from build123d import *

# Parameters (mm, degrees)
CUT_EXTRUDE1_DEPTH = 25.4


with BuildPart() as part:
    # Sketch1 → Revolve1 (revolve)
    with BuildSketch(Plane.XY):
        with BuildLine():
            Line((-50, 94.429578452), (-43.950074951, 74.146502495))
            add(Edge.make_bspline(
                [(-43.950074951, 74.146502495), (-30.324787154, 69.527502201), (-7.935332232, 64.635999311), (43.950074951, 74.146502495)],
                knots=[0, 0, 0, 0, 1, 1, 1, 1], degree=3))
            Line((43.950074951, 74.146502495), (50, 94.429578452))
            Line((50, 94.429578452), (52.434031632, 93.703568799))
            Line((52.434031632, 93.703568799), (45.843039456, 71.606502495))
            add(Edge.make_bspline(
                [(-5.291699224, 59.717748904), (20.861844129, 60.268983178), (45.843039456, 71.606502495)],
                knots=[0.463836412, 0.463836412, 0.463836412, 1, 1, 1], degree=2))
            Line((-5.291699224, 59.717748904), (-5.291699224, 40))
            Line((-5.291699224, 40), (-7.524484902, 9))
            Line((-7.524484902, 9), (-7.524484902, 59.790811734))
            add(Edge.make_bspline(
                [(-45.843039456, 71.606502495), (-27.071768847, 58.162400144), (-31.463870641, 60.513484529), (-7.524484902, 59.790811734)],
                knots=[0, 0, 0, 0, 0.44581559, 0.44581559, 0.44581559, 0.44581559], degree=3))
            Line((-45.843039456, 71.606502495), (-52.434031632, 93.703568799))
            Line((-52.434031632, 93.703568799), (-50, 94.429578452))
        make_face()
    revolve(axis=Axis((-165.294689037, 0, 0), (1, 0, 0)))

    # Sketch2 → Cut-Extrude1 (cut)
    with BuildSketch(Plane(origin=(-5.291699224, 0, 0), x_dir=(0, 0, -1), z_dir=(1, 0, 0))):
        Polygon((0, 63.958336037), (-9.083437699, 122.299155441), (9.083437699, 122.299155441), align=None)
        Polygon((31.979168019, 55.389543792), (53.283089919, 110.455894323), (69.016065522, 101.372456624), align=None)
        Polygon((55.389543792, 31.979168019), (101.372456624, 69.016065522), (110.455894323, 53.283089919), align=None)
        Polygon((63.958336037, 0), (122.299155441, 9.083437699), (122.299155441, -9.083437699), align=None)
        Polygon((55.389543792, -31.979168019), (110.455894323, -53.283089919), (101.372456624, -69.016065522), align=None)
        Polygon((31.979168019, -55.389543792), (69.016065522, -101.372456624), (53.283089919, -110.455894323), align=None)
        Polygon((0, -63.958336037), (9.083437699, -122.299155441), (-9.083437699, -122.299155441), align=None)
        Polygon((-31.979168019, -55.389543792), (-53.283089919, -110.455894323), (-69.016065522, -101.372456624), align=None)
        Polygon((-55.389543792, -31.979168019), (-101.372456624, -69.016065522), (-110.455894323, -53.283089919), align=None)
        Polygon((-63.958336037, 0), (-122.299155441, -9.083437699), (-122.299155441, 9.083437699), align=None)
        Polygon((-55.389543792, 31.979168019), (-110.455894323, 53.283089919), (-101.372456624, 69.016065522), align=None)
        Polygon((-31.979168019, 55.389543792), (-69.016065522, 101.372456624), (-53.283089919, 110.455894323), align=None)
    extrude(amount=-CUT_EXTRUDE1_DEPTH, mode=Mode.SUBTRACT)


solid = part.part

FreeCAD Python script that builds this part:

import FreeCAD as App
import Part
import Sketcher
from FreeCAD import Vector
Q = App.Units.Quantity


def add_polygon(sketch, points):
    """Adds a closed chain of lines whose ends are joined by coincident constraints."""
    first, n = sketch.GeometryCount, len(points)
    for a, b in zip(points, points[1:] + points[:1]):
        sketch.addGeometry(Part.LineSegment(App.Vector(*a, 0), App.Vector(*b, 0)), False)
    for i in range(n):
        sketch.addConstraint(Sketcher.Constraint("Coincident", first + i, 2, first + (i + 1) % n, 1))

doc = App.newDocument("Part")
params = doc.addObject("Spreadsheet::Sheet", "Params")
for row, (alias, value) in enumerate([
    ("sketch1_length", "0.1 in"),
    ("sketch1_length2", "0.1 in"),
    ("revolution_angle", "360 deg"),
    ("pocket1_length", "1 in"),
], start=1):
    params.set(f"A{row}", alias)
    params.set(f"B{row}", "=" + value)
    params.setAlias(f"B{row}", alias)

body = doc.addObject("PartDesign::Body", "Body")

# Sketch on XY plane
sketch1 = doc.addObject("Sketcher::SketchObject", "Sketch")
body.addObject(sketch1)
sketch1.AttachmentSupport = (doc.XY_Plane, [""])
sketch1.MapMode = "FlatFace"
sketch1.addGeometry([
    Part.LineSegment(Vector(-43.950075, 74.146502, 0), Vector(-50, 94.429578, 0)),  # 0
    Part.LineSegment(Vector(-50, 94.429578, 0), Vector(-52.434032, 93.703569, 0)),  # 1
    Part.LineSegment(Vector(-52.434032, 93.703569, 0), Vector(-45.843039, 71.606502, 0)),  # 2
    Part.BSplineCurve([Vector(-45.843039, 71.606502, 0), Vector(-27.071769, 58.1624, 0), Vector(-31.463871, 60.513485, 0), Vector(-7.524485, 59.790812, 0)], [4, 4], [0, 0.44581559], False, 3, [1, 1, 1, 1], False),  # 3
    Part.LineSegment(Vector(-7.524485, 59.790812, 0), Vector(-7.524485, 9, 0)),  # 4
    Part.LineSegment(Vector(-7.524485, 9, 0), Vector(-5.291699, 40, 0)),  # 5
    Part.LineSegment(Vector(-5.291699, 40, 0), Vector(-5.291699, 59.717749, 0)),  # 6
    Part.BSplineCurve([Vector(-5.291699, 59.717749, 0), Vector(20.861844, 60.268983, 0), Vector(45.843039, 71.606502, 0)], [3, 3], [0.463836412, 1], False, 2, [1, 1, 1], False),  # 7
    Part.LineSegment(Vector(45.843039, 71.606502, 0), Vector(52.434032, 93.703569, 0)),  # 8
    Part.LineSegment(Vector(52.434032, 93.703569, 0), Vector(50, 94.429578, 0)),  # 9
    Part.LineSegment(Vector(50, 94.429578, 0), Vector(43.950075, 74.146502, 0)),  # 10
    Part.BSplineCurve([Vector(-43.950075, 74.146502, 0), Vector(-30.324787, 69.527502, 0), Vector(-7.935332, 64.635999, 0), Vector(43.950075, 74.146502, 0)], [4, 4], [0, 1], False, 3, [1, 1, 1, 1], False),  # 11
], False)
sketch1.addConstraint([
    Sketcher.Constraint("Block", 3),
    Sketcher.Constraint("Block", 7),
    Sketcher.Constraint("Block", 11),
    Sketcher.Constraint("Coincident", 0, 2, 1, 1),
    Sketcher.Constraint("Coincident", 1, 2, 2, 1),
    Sketcher.Constraint("Coincident", 2, 2, 3, 1),
    Sketcher.Constraint("Coincident", 3, 2, 4, 1),
    Sketcher.Constraint("Coincident", 4, 2, 5, 1),
    Sketcher.Constraint("Coincident", 5, 2, 6, 1),
    Sketcher.Constraint("Coincident", 6, 2, 7, 1),
    Sketcher.Constraint("Coincident", 7, 2, 8, 1),
    Sketcher.Constraint("Coincident", 8, 2, 9, 1),
    Sketcher.Constraint("Coincident", 9, 2, 10, 1),
    Sketcher.Constraint("Coincident", 10, 2, 11, 2),
    Sketcher.Constraint("Coincident", 11, 1, 0, 1),
    Sketcher.Constraint("Vertical", 4),
    Sketcher.Constraint("Vertical", 6),
    Sketcher.Constraint("Distance", 1, Q("0.1 in")),
    Sketcher.Constraint("Distance", 9, Q("0.1 in")),
    Sketcher.Constraint("DistanceY", -1, 1, 0, 2, Q("3.7176999 in")),
    Sketcher.Constraint("DistanceY", -1, 1, 9, 2, Q("3.7176999 in")),
    Sketcher.Constraint("DistanceY", 4, 2, 4, 1, 50.790812),
    Sketcher.Constraint("DistanceY", 6, 1, 6, 2, 19.717749),
    Sketcher.Constraint("DistanceX", 0, 2, -1, 1, 50.0),
    Sketcher.Constraint("DistanceX", -1, 1, 9, 2, 50.0),
    Sketcher.Constraint("DistanceX", 1, 2, -1, 1, 52.434032),
    Sketcher.Constraint("DistanceX", -1, 1, 8, 2, 52.434032),
])
sketch1.setExpression("Constraints[17]", "Params.sketch1_length")
sketch1.setExpression("Constraints[18]", "Params.sketch1_length2")
revolution = doc.addObject("PartDesign::Revolution", "Revolution")
body.addObject(revolution)
revolution.Profile = sketch1
revolution.ReferenceAxis = (sketch1, ["H_Axis"])
revolution.setExpression("Angle", "Params.revolution_angle")

# Sketch on YZ plane
sketch2 = doc.addObject("Sketcher::SketchObject", "Sketch001")
body.addObject(sketch2)
sketch2.AttachmentSupport = (doc.YZ_Plane, [""])
sketch2.MapMode = "FlatFace"
sketch2.AttachmentOffset = App.Placement(Vector(0, 0, -5.291699), App.Rotation())
add_polygon(sketch2, [(122.299155, 9.083438), (63.958336, 0), (122.299155, -9.083438)])  # lines 0-2
add_polygon(sketch2, [(110.455894, -53.28309), (55.389544, -31.979168), (101.372457, -69.016066)])  # lines 3-5
add_polygon(sketch2, [(69.016066, -101.372457), (31.979168, -55.389544), (53.28309, -110.455894)])  # lines 6-8
add_polygon(sketch2, [(9.083438, -122.299155), (0, -63.958336), (-9.083438, -122.299155)])  # lines 9-11
add_polygon(sketch2, [(-53.28309, -110.455894), (-31.979168, -55.389544), (-69.016066, -101.372457)])  # lines 12-14
add_polygon(sketch2, [(-101.372457, -69.016066), (-55.389544, -31.979168), (-110.455894, -53.28309)])  # lines 15-17
add_polygon(sketch2, [(-122.299155, -9.083438), (-63.958336, 0), (-122.299155, 9.083438)])  # lines 18-20
add_polygon(sketch2, [(-110.455894, 53.28309), (-55.389544, 31.979168), (-101.372457, 69.016066)])  # lines 21-23
add_polygon(sketch2, [(-69.016066, 101.372457), (-31.979168, 55.389544), (-53.28309, 110.455894)])  # lines 24-26
add_polygon(sketch2, [(-9.083438, 122.299155), (0, 63.958336), (9.083438, 122.299155)])  # lines 27-29
add_polygon(sketch2, [(53.28309, 110.455894), (31.979168, 55.389544), (69.016066, 101.372457)])  # lines 30-32
add_polygon(sketch2, [(101.372457, 69.016066), (55.389544, 31.979168), (110.455894, 53.28309)])  # lines 33-35
sketch2.addConstraint([
    Sketcher.Constraint("Vertical", 2),
    Sketcher.Constraint("Horizontal", 11),
    Sketcher.Constraint("Vertical", 20),
    Sketcher.Constraint("Horizontal", 29),
    Sketcher.Constraint("Symmetric", 0, 2, 18, 2, -1, 1),
    Sketcher.Constraint("Symmetric", 1, 2, 19, 2, -1, 1),
    Sketcher.Constraint("Symmetric", 3, 2, 21, 2, -1, 1),
    Sketcher.Constraint("Symmetric", 4, 2, 22, 2, -1, 1),
    Sketcher.Constraint("Symmetric", 5, 2, 23, 2, -1, 1),
    Sketcher.Constraint("Symmetric", 6, 2, 24, 2, -1, 1),
    Sketcher.Constraint("Symmetric", 7, 2, 25, 2, -1, 1),
    Sketcher.Constraint("Symmetric", 8, 2, 26, 2, -1, 1),
    Sketcher.Constraint("Symmetric", 9, 2, 27, 2, -1, 1),
    Sketcher.Constraint("Symmetric", 10, 2, 28, 2, -1, 1),
    Sketcher.Constraint("Symmetric", 12, 2, 30, 2, -1, 1),
    Sketcher.Constraint("Symmetric", 13, 2, 31, 2, -1, 1),
    Sketcher.Constraint("Symmetric", 14, 2, 32, 2, -1, 1),
    Sketcher.Constraint("Symmetric", 15, 2, 33, 2, -1, 1),
    Sketcher.Constraint("Symmetric", 16, 2, 34, 2, -1, 1),
    Sketcher.Constraint("Symmetric", 17, 2, 35, 2, -1, 1),
    Sketcher.Constraint("Symmetric", 6, 2, 12, 2, -2),
    Sketcher.Constraint("Symmetric", 8, 2, 13, 2, -2),
    Sketcher.Constraint("Symmetric", 7, 2, 14, 2, -2),
    Sketcher.Constraint("Symmetric", 3, 2, 15, 2, -2),
    Sketcher.Constraint("Symmetric", 5, 2, 16, 2, -2),
    Sketcher.Constraint("Symmetric", 4, 2, 17, 2, -2),
    Sketcher.Constraint("PointOnObject", 0, 2, -1),
    Sketcher.Constraint("PointOnObject", 9, 2, -2),
    Sketcher.Constraint("Perpendicular", 0, 9),
    Sketcher.Constraint("Perpendicular", 1, 10),
    Sketcher.Constraint("Perpendicular", 3, 12),
    Sketcher.Constraint("Perpendicular", 4, 13),
    Sketcher.Constraint("Perpendicular", 5, 14),
    Sketcher.Constraint("Perpendicular", 9, 18),
    Sketcher.Constraint("Perpendicular", 18, 27),
    Sketcher.Constraint("Horizontal", 2, 2, 19, 2),
    Sketcher.Constraint("Equal", 29, 2),
    Sketcher.Constraint("Equal", 1, 3),
    Sketcher.Constraint("Equal", 3, 4),
    Sketcher.Constraint("Equal", 4, 6),
    Sketcher.Constraint("Angle", 5, Q("60 deg")),
    Sketcher.Constraint("DistanceX", 4, 2, 1, 2, 20.926699),
    Sketcher.Constraint("DistanceY", 10, 2, 8, 2, 20.926699),
    Sketcher.Constraint("DistanceX", 11, 1, 11, 2, 18.166875),
    Sketcher.Constraint("DistanceY", 3, 2, -1, 1, 31.979168),
    Sketcher.Constraint("DistanceY", 5, 2, -1, 1, 53.28309),
    Sketcher.Constraint("DistanceX", -1, 1, 6, 2, 31.979168),
    Sketcher.Constraint("DistanceX", 0, 2, 1, 2, 58.340819),
    Sketcher.Constraint("DistanceX", 6, 2, 0, 2, 31.979168),
    Sketcher.Constraint("DistanceY", 4, 2, 6, 2, 13.626522),
])
pocket1 = doc.addObject("PartDesign::Pocket", "Pocket")
body.addObject(pocket1)
pocket1.Profile = sketch2
pocket1.setExpression("Length", "Params.pocket1_length")

doc.recompute()
